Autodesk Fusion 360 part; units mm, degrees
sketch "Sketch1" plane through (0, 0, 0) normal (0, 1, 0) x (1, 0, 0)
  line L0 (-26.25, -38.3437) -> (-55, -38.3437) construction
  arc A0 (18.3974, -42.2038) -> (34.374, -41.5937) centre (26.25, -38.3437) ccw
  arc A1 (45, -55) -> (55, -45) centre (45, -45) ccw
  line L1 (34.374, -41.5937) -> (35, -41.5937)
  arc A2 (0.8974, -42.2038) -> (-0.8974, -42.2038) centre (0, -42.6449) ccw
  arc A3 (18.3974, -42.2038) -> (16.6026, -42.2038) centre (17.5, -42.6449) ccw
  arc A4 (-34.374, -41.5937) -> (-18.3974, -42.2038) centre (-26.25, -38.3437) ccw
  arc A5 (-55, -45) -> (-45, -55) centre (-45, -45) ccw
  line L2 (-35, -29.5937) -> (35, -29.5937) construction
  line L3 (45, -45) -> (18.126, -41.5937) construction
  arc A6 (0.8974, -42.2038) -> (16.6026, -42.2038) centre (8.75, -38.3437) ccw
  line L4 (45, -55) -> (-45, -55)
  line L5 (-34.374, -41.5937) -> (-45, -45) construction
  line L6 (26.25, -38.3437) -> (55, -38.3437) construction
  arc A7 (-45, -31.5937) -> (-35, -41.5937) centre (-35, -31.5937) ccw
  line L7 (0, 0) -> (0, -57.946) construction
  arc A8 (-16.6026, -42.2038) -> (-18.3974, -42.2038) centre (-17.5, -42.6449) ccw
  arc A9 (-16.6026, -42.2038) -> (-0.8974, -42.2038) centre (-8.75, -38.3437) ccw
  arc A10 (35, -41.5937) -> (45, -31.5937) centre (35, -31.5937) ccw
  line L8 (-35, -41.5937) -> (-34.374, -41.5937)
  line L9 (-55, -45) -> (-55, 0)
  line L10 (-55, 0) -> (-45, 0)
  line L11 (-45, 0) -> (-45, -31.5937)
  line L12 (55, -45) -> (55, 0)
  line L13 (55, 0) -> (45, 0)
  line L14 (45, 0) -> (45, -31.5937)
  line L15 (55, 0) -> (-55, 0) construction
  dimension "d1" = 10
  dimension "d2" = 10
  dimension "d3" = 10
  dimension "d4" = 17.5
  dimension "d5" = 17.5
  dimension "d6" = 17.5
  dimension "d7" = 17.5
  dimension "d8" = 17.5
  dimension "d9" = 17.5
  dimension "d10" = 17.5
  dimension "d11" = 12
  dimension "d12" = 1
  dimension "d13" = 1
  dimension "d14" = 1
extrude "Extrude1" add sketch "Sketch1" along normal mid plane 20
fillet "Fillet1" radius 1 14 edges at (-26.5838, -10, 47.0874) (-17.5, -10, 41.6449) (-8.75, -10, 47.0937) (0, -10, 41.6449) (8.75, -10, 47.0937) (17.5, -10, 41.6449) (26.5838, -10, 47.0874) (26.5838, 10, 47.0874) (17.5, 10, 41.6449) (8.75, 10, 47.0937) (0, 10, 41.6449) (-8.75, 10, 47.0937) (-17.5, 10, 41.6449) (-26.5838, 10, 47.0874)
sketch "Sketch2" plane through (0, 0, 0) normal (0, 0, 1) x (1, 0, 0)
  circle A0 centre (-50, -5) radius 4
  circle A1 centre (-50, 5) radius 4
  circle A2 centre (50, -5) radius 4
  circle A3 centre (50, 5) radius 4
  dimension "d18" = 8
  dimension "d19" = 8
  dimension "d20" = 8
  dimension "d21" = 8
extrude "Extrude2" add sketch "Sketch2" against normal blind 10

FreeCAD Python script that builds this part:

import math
import FreeCAD as App
import Part
import Sketcher


def edges_at(feature, points):
    """Names of the edges that pass closest to the given points."""
    edges = feature.Shape.Edges
    near = lambda p: min(range(len(edges)), key=lambda i: edges[i].distToShape(Part.Vertex(*p))[0])
    return sorted({f"Edge{near(p) + 1}" for p in points})

doc = App.newDocument("Part")
body = doc.addObject("PartDesign::Body", "Body")

sketch1 = body.newObject("Sketcher::SketchObject", "Sketch")
sketch1.AttachmentSupport = (doc.getObject("XZ_Plane"), [""])
sketch1.MapMode = "FlatFace"
sketch1.addGeometry([
    Part.ArcOfCircle(Part.Circle(App.Vector(26.2, 38.3, 0), App.Vector(0, 0, 1), 8.8), math.radians(22), math.radians(154)),
    Part.ArcOfCircle(Part.Circle(App.Vector(17.5, 42.6, 0), App.Vector(0, 0, 1), 1), math.radians(-154), math.radians(-26)),
    Part.ArcOfCircle(Part.Circle(App.Vector(8.8, 38.3, 0), App.Vector(0, 0, 1), 8.8), math.radians(26), math.radians(154)),
    Part.ArcOfCircle(Part.Circle(App.Vector(0, 42.6, 0), App.Vector(0, 0, 1), 1), math.radians(-154), math.radians(-26)),
    Part.ArcOfCircle(Part.Circle(App.Vector(-8.8, 38.3, 0), App.Vector(0, 0, 1), 8.8), math.radians(26), math.radians(154)),
    Part.ArcOfCircle(Part.Circle(App.Vector(-17.5, 42.6, 0), App.Vector(0, 0, 1), 1), math.radians(-154), math.radians(-26)),
    Part.ArcOfCircle(Part.Circle(App.Vector(-26.2, 38.3, 0), App.Vector(0, 0, 1), 8.7), math.radians(26), math.radians(158)),
    Part.LineSegment(App.Vector(-34.4, 41.6, 0), App.Vector(-35, 41.6, 0)),
    Part.ArcOfCircle(Part.Circle(App.Vector(-35, 31.6, 0), App.Vector(0, 0, 1), 10), math.radians(90), math.radians(180)),
    Part.LineSegment(App.Vector(-45, 31.6, 0), App.Vector(-45, 0, 0)),
    Part.LineSegment(App.Vector(-45, 0, 0), App.Vector(-55, 0, 0)),
    Part.LineSegment(App.Vector(-55, 0, 0), App.Vector(-55, 45, 0)),
    Part.ArcOfCircle(Part.Circle(App.Vector(-45, 45, 0), App.Vector(0, 0, 1), 10), math.radians(90), math.radians(180)),
    Part.LineSegment(App.Vector(-45, 55, 0), App.Vector(45, 55, 0)),
    Part.ArcOfCircle(Part.Circle(App.Vector(45, 45, 0), App.Vector(0, 0, 1), 10), math.radians(0), math.radians(90)),
    Part.LineSegment(App.Vector(55, 45, 0), App.Vector(55, 0, 0)),
    Part.LineSegment(App.Vector(55, 0, 0), App.Vector(45, 0, 0)),
    Part.LineSegment(App.Vector(45, 0, 0), App.Vector(45, 31.6, 0)),
    Part.ArcOfCircle(Part.Circle(App.Vector(35, 31.6, 0), App.Vector(0, 0, 1), 10), math.radians(0), math.radians(90)),
    Part.LineSegment(App.Vector(35, 41.6, 0), App.Vector(34.4, 41.6, 0)),
], False)
sketch1.addConstraint([
    Sketcher.Constraint("Tangent", 0, 2, 1, 2),
    Sketcher.Constraint("Tangent", 1, 1, 2, 1),
    Sketcher.Constraint("Tangent", 2, 2, 3, 2),
    Sketcher.Constraint("Tangent", 3, 1, 4, 1),
    Sketcher.Constraint("Tangent", 4, 2, 5, 2),
    Sketcher.Constraint("Tangent", 5, 1, 6, 1),
    Sketcher.Constraint("Coincident", 6, 2, 7, 1),
    Sketcher.Constraint("Tangent", 7, 2, 8, 1),
    Sketcher.Constraint("Tangent", 8, 2, 9, 1),
    Sketcher.Constraint("Coincident", 9, 2, 10, 1),
    Sketcher.Constraint("Coincident", 10, 2, 11, 1),
    Sketcher.Constraint("Tangent", 11, 2, 12, 2),
    Sketcher.Constraint("Tangent", 12, 1, 13, 1),
    Sketcher.Constraint("Tangent", 13, 2, 14, 2),
    Sketcher.Constraint("Tangent", 14, 1, 15, 1),
    Sketcher.Constraint("Coincident", 15, 2, 16, 1),
    Sketcher.Constraint("Coincident", 16, 2, 17, 1),
    Sketcher.Constraint("Tangent", 17, 2, 18, 1),
    Sketcher.Constraint("Tangent", 18, 2, 19, 1),
    Sketcher.Constraint("Coincident", 19, 2, 0, 1),
    Sketcher.Constraint("Horizontal", 7),
    Sketcher.Constraint("Vertical", 9),
    Sketcher.Constraint("Horizontal", 10),
    Sketcher.Constraint("Vertical", 11),
    Sketcher.Constraint("Horizontal", 13),
    Sketcher.Constraint("Vertical", 15),
    Sketcher.Constraint("Horizontal", 16),
    Sketcher.Constraint("Vertical", 17),
    Sketcher.Constraint("Horizontal", 19),
    Sketcher.Constraint("Equal", 0, 2),
    Sketcher.Constraint("Equal", 1, 3),
    Sketcher.Constraint("Equal", 2, 4),
    Sketcher.Constraint("Equal", 3, 5),
    Sketcher.Constraint("Equal", 4, 6),
    Sketcher.Constraint("Equal", 8, 12),
    Sketcher.Constraint("Equal", 12, 14),
    Sketcher.Constraint("Equal", 14, 18),
    Sketcher.Constraint("Symmetric", 10, 2, 15, 2, -1, 1),
    Sketcher.Constraint("Symmetric", 2, 3, 4, 3, -2),
    Sketcher.Constraint("Symmetric", 0, 3, 6, 3, -2),
    Sketcher.Constraint("Symmetric", 8, 3, 18, 3, -2),
    Sketcher.Constraint("PointOnObject", 9, 2, -1),
    Sketcher.Constraint("Horizontal", 0, 3, 2, 3),
    Sketcher.Constraint("Horizontal", 1, 3, 3, 3),
    Sketcher.Constraint("Vertical", 12, 3, 8, 2),
    Sketcher.Constraint("Radius", 1, 1.0),
    Sketcher.Constraint("Radius", 8, 10.0),
    Sketcher.Constraint("Radius", 0, 8.75),
    Sketcher.Constraint("DistanceX", -1, 1, 1, 3, 17.5),
    Sketcher.Constraint("DistanceX", 8, 3, 5, 3, 17.5),
    Sketcher.Constraint("DistanceY", 11, 1, 11, 2, 45.0),
    Sketcher.Constraint("DistanceX", 7, 2, 7, 1, 0.626),
    Sketcher.Constraint("DistanceY", 9, 2, 9, 1, 31.5937),
])
pad1 = body.newObject("PartDesign::Pad", "Pad")
pad1.Profile = sketch1
pad1.Length = 20
pad1.Midplane = True
doc.recompute()

fillet = body.newObject("PartDesign::Fillet", "Fillet")
fillet.Base = (pad1, edges_at(pad1, [
    (-26.584, -10, 47.087),
    (-17.5, -10, 41.645),
    (-8.75, -10, 47.094),
    (0, -10, 41.645),
    (8.75, -10, 47.094),
    (17.5, -10, 41.645),
    (26.584, -10, 47.087),
    (26.584, 10, 47.087),
    (17.5, 10, 41.645),
    (8.75, 10, 47.094),
    (0, 10, 41.645),
    (-8.75, 10, 47.094),
    (-17.5, 10, 41.645),
    (-26.584, 10, 47.087),
]))
fillet.Radius = 1

sketch2 = body.newObject("Sketcher::SketchObject", "Sketch001")
sketch2.AttachmentSupport = (doc.getObject("XY_Plane"), [""])
sketch2.MapMode = "FlatFace"
sketch2.addGeometry([
    Part.Circle(App.Vector(-50, -5, 0), App.Vector(0, 0, 1), 4),
    Part.Circle(App.Vector(-50, 5, 0), App.Vector(0, 0, 1), 4),
    Part.Circle(App.Vector(50, -5, 0), App.Vector(0, 0, 1), 4),
    Part.Circle(App.Vector(50, 5, 0), App.Vector(0, 0, 1), 4),
], False)
sketch2.addConstraint([
    Sketcher.Constraint("Equal", 0, 1),
    Sketcher.Constraint("Equal", 1, 2),
    Sketcher.Constraint("Equal", 2, 3),
    Sketcher.Constraint("Symmetric", 1, 3, 2, 3, -1, 1),
    Sketcher.Constraint("Symmetric", 0, 3, 3, 3, -1, 1),
    Sketcher.Constraint("Symmetric", 0, 3, 2, 3, -2),
    Sketcher.Constraint("Diameter", 0, 8.0),
    Sketcher.Constraint("DistanceX", 0, 3, -1, 1, 50.0),
    Sketcher.Constraint("DistanceY", 0, 3, -1, 1, 5.0),
])
pad2 = body.newObject("PartDesign::Pad", "Pad001")
pad2.Profile = sketch2
pad2.Length = 10
pad2.Reversed = True

doc.recompute()
